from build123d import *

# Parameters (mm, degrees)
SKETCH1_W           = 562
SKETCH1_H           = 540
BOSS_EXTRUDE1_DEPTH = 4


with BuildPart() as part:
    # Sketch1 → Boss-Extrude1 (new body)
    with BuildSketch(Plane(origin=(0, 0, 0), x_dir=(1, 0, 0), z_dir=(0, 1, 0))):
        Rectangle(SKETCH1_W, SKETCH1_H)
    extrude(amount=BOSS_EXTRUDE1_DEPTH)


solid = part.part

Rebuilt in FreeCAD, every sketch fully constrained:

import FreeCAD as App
import Part
import Sketcher
Q = App.Units.Quantity


def add_polygon(sketch, points):
    """Adds a closed chain of lines whose ends are joined by coincident constraints."""
    first, n = sketch.GeometryCount, len(points)
    for a, b in zip(points, points[1:] + points[:1]):
        sketch.addGeometry(Part.LineSegment(App.Vector(*a, 0), App.Vector(*b, 0)), False)
    for i in range(n):
        sketch.addConstraint(Sketcher.Constraint("Coincident", first + i, 2, first + (i + 1) % n, 1))

doc = App.newDocument("Part")
body = doc.addObject("PartDesign::Body", "Body")

sketch1 = body.newObject("Sketcher::SketchObject", "Sketch")
sketch1.AttachmentSupport = (doc.getObject("XZ_Plane"), [""])
sketch1.MapMode = "FlatFace"
add_polygon(sketch1, [(-281, -270), (-281, 270), (281, 270), (281, -270)])
sketch1.addConstraint(Sketcher.Constraint("Vertical", 0))
sketch1.addConstraint(Sketcher.Constraint("Horizontal", 1))
sketch1.addConstraint(Sketcher.Constraint("Vertical", 2))
sketch1.addConstraint(Sketcher.Constraint("Horizontal", 3))
sketch1.addConstraint(Sketcher.Constraint("Symmetric", 0, 2, 2, 2, -1, 1))
sketch1.addConstraint(Sketcher.Constraint("DistanceX", 1, 1, 1, 2, Q("562 mm")))
sketch1.addConstraint(Sketcher.Constraint("DistanceY", 0, 1, 0, 2, Q("540 mm")))
pad1 = body.newObject("PartDesign::Pad", "Pad")
pad1.Profile = sketch1
pad1.Length = 4
pad1.Reversed = True

doc.recompute()
